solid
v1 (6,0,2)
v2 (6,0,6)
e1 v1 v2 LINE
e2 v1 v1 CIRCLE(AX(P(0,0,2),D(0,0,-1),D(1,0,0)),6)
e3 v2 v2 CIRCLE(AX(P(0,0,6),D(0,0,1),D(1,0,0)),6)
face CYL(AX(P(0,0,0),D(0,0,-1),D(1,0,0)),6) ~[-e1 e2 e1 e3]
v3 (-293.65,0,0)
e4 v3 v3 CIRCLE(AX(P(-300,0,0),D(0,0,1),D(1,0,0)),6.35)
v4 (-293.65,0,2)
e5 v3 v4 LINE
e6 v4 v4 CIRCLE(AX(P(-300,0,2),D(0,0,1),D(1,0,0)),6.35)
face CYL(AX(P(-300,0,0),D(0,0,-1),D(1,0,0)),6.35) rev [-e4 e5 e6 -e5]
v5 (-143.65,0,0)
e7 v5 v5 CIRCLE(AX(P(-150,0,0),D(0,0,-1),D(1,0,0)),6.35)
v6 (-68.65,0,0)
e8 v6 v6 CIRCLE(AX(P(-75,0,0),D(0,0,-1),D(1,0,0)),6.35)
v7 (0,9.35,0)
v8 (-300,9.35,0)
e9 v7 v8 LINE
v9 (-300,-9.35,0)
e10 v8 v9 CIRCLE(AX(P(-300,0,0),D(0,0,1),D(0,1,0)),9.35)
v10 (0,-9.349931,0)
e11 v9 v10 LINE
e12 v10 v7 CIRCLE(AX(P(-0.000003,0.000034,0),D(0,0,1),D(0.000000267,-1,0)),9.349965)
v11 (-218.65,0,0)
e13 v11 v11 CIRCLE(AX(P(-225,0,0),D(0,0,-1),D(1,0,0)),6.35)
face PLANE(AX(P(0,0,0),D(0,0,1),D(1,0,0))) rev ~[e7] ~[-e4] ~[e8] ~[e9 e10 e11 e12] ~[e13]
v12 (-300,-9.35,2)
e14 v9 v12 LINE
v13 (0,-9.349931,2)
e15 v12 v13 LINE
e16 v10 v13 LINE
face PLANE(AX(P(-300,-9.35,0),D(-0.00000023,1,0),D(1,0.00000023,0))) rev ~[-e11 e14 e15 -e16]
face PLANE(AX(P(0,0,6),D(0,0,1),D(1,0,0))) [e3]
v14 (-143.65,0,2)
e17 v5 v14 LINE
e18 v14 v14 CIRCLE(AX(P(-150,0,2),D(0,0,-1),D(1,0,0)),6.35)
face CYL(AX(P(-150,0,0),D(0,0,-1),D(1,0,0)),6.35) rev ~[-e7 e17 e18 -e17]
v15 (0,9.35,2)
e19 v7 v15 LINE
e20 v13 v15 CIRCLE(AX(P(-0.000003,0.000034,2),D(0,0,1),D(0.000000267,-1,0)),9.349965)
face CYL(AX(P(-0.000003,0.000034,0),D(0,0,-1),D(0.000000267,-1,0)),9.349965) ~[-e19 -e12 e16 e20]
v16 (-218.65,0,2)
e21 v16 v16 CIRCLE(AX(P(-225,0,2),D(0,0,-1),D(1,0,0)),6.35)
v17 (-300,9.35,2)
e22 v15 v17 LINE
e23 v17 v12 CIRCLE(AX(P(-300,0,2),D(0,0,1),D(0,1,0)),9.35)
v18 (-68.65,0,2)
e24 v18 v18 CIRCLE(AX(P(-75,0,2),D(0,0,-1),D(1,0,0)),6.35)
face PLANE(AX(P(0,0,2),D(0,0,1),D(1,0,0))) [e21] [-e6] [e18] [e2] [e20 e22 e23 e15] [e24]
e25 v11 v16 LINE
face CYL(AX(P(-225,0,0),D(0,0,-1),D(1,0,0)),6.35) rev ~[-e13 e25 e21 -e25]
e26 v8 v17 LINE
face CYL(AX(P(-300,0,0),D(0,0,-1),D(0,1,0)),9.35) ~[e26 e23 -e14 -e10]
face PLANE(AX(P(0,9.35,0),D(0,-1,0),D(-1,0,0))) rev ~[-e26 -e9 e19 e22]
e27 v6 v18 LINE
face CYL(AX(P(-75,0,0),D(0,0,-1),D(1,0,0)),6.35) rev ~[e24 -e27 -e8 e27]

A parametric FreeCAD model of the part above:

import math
import FreeCAD as App
import Part
import Sketcher

doc = App.newDocument("Part")
params = doc.addObject("Spreadsheet::Sheet", "Params")
for row, (alias, value) in enumerate([
    ("sketch1_diameter", "12 mm"),
    ("sketch1_diameter2", "12.7 mm"),
    ("sketch1_diameter3", "12.7 mm"),
    ("sketch1_diameter4", "12.7 mm"),
    ("sketch1_diameter5", "12.7 mm"),
    ("pad1_length", "2 mm"),
    ("sketch2_diameter", "12 mm"),
    ("pad2_length", "6 mm"),
], start=1):
    params.set(f"A{row}", alias)
    params.set(f"B{row}", "=" + value)
    params.setAlias(f"B{row}", alias)

body = doc.addObject("PartDesign::Body", "Body")

# Sketch on XY plane
sketch1 = body.newObject("Sketcher::SketchObject", "Sketch")
sketch1.AttachmentSupport = (doc.getObject("XY_Plane"), [""])
sketch1.MapMode = "FlatFace"
sketch1.addGeometry(Part.LineSegment(App.Vector(0, 9.35, 0), App.Vector(-300, 9.35, 0)), False)
sketch1.addGeometry(Part.ArcOfCircle(Part.Circle(App.Vector(-300, 0, 0), App.Vector(0, 0, 1), 9.35), math.radians(90), math.radians(270)), False)
sketch1.addGeometry(Part.LineSegment(App.Vector(-300, -9.35, 0), App.Vector(0, -9.349931, 0)), False)
sketch1.addGeometry(Part.ArcOfCircle(Part.Circle(App.Vector(-0.000003, 0.000034, 0), App.Vector(0, 0, 1), 9.349965), math.radians(-89.999985), math.radians(89.999985)), False)
sketch1.addGeometry(Part.Circle(App.Vector(-75, 0, 0), App.Vector(0, 0, 1), 6.35), False)
sketch1.addGeometry(Part.Circle(App.Vector(-300, 0, 0), App.Vector(0, 0, 1), 6.35), False)
sketch1.addGeometry(Part.Circle(App.Vector(-225, 0, 0), App.Vector(0, 0, 1), 6.35), False)
sketch1.addGeometry(Part.Circle(App.Vector(-150, 0, 0), App.Vector(0, 0, 1), 6.35), False)
sketch1.addGeometry(Part.Circle(App.Vector(0, 0, 0), App.Vector(0, 0, 1), 6), False)
sketch1.addConstraint(Sketcher.Constraint("Coincident", 0, 2, 1, 1))
sketch1.addConstraint(Sketcher.Constraint("Coincident", 1, 2, 2, 1))
sketch1.addConstraint(Sketcher.Constraint("Coincident", 2, 2, 3, 1))
sketch1.addConstraint(Sketcher.Constraint("Coincident", 3, 2, 0, 1))
sketch1.addConstraint(Sketcher.Constraint("Horizontal", 0))
sketch1.addConstraint(Sketcher.Constraint("Coincident", 8, 3, -1, 1))
sketch1.addConstraint(Sketcher.Constraint("Coincident", 5, 3, 1, 3))
sketch1.addConstraint(Sketcher.Constraint("PointOnObject", 1, 3, -1))
sketch1.addConstraint(Sketcher.Constraint("PointOnObject", 4, 3, -1))
sketch1.addConstraint(Sketcher.Constraint("PointOnObject", 6, 3, -1))
sketch1.addConstraint(Sketcher.Constraint("PointOnObject", 7, 3, -1))
sketch1.addConstraint(Sketcher.Constraint("PointOnObject", 2, 2, -2))
sketch1.addConstraint(Sketcher.Constraint("PointOnObject", 3, 2, -2))
sketch1.addConstraint(Sketcher.Constraint("Diameter", 8, 12.0))
sketch1.addConstraint(Sketcher.Constraint("Diameter", 4, 12.7))
sketch1.addConstraint(Sketcher.Constraint("Diameter", 5, 12.7))
sketch1.addConstraint(Sketcher.Constraint("Diameter", 6, 12.7))
sketch1.addConstraint(Sketcher.Constraint("Diameter", 7, 12.7))
sketch1.addConstraint(Sketcher.Constraint("DistanceX", 0, 2, 0, 1, 300.0))
sketch1.addConstraint(Sketcher.Constraint("Radius", 1, 9.35))
sketch1.addConstraint(Sketcher.Constraint("Distance", 2, 300.0))
sketch1.addConstraint(Sketcher.Constraint("DistanceX", 1, 3, -1, 1, 300.0))
sketch1.addConstraint(Sketcher.Constraint("DistanceX", 4, 3, -1, 1, 75.0))
sketch1.addConstraint(Sketcher.Constraint("DistanceX", 6, 3, -1, 1, 225.0))
sketch1.addConstraint(Sketcher.Constraint("DistanceX", 7, 3, -1, 1, 150.0))
sketch1.addConstraint(Sketcher.Constraint("Radius", 3, 9.349965))
sketch1.addConstraint(Sketcher.Constraint("DistanceX", 1, 3, 3, 3, 299.999998))
sketch1.setExpression("Constraints[13]", "Params.sketch1_diameter")
sketch1.setExpression("Constraints[14]", "Params.sketch1_diameter2")
sketch1.setExpression("Constraints[15]", "Params.sketch1_diameter3")
sketch1.setExpression("Constraints[16]", "Params.sketch1_diameter4")
sketch1.setExpression("Constraints[17]", "Params.sketch1_diameter5")
pad1 = body.newObject("PartDesign::Pad", "Pad")
pad1.Profile = sketch1
pad1.setExpression("Length", "Params.pad1_length")

# Sketch on XY plane
sketch2 = body.newObject("Sketcher::SketchObject", "Sketch001")
sketch2.AttachmentSupport = (doc.getObject("XY_Plane"), [""])
sketch2.MapMode = "FlatFace"
sketch2.addGeometry(Part.Circle(App.Vector(0, 0, 0), App.Vector(0, 0, 1), 6), False)
sketch2.addConstraint(Sketcher.Constraint("Coincident", 0, 3, -1, 1))
sketch2.addConstraint(Sketcher.Constraint("Diameter", 0, 12.0))
sketch2.setExpression("Constraints[1]", "Params.sketch2_diameter")
pad2 = body.newObject("PartDesign::Pad", "Pad001")
pad2.Profile = sketch2
pad2.setExpression("Length", "Params.pad2_length")

doc.recompute()
